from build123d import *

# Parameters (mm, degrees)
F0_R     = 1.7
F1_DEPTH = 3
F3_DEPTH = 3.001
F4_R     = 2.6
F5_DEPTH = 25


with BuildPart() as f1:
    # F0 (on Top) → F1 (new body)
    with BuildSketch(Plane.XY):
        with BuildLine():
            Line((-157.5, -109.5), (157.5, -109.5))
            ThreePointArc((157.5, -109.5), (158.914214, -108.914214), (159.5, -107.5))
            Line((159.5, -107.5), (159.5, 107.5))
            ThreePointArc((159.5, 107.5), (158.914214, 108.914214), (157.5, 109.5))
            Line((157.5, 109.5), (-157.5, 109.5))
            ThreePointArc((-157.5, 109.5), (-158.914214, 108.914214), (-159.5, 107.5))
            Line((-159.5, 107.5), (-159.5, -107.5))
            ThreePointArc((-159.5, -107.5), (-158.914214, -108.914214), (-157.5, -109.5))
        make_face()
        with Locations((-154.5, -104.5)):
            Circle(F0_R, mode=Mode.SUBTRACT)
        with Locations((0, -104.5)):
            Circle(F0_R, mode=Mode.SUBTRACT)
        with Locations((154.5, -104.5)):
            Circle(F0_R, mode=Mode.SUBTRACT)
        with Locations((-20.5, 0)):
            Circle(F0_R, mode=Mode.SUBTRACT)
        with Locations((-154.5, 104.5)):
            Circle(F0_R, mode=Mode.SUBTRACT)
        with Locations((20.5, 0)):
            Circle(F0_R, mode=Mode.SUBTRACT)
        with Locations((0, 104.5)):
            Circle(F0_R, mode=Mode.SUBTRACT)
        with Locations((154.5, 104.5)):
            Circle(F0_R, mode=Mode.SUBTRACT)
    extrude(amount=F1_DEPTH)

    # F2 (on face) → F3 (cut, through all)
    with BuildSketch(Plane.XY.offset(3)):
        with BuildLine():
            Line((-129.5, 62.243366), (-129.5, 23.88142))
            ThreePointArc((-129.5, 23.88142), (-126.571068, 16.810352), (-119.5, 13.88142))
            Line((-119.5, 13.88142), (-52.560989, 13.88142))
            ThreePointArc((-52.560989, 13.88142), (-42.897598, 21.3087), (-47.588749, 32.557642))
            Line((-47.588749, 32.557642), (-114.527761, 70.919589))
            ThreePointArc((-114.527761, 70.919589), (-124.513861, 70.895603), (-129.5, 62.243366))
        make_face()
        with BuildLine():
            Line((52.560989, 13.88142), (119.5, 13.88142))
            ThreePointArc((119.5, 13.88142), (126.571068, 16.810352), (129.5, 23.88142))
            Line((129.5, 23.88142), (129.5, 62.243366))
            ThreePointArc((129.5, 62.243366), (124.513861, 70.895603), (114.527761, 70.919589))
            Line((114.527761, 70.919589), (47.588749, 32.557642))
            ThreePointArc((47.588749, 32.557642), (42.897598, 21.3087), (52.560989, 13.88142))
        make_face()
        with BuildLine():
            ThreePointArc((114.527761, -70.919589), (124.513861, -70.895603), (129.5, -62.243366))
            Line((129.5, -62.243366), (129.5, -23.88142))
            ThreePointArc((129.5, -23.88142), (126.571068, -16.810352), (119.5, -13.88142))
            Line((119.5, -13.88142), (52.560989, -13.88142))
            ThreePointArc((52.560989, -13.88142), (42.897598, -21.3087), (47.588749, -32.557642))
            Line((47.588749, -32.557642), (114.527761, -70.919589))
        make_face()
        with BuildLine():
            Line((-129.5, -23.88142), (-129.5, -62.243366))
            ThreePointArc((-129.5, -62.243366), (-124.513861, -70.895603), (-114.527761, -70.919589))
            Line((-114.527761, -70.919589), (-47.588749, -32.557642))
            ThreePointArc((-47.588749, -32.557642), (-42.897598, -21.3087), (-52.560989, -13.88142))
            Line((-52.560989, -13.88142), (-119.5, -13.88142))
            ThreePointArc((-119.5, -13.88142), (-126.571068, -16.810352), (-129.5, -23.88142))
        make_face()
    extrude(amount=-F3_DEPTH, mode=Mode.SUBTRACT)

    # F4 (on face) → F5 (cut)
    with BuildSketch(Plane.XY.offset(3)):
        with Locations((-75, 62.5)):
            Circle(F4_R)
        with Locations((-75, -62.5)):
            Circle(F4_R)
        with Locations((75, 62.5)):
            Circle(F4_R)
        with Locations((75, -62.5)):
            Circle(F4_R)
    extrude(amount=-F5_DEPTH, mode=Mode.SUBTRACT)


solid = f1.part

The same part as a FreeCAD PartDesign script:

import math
import FreeCAD as App
import Part
import Sketcher
from FreeCAD import Vector

doc = App.newDocument("Part")
body = doc.addObject("PartDesign::Body", "Body")

# Sketch on XY plane
sketch1 = body.newObject("Sketcher::SketchObject", "Sketch")
sketch1.AttachmentSupport = (doc.getObject("XY_Plane"), [""])
sketch1.MapMode = "FlatFace"
sketch1.addGeometry([
    Part.LineSegment(Vector(-157.5, -109.5, 0), Vector(157.5, -109.5, 0)),  # 0
    Part.ArcOfCircle(Part.Circle(Vector(157.5, -107.5, 0), Vector(0, 0, 1), 2), math.radians(-90), math.radians(0)),  # 1
    Part.LineSegment(Vector(159.5, -107.5, 0), Vector(159.5, 107.5, 0)),  # 2
    Part.ArcOfCircle(Part.Circle(Vector(157.5, 107.5, 0), Vector(0, 0, 1), 2), math.radians(0), math.radians(90)),  # 3
    Part.LineSegment(Vector(157.5, 109.5, 0), Vector(-157.5, 109.5, 0)),  # 4
    Part.ArcOfCircle(Part.Circle(Vector(-157.5, 107.5, 0), Vector(0, 0, 1), 2), math.radians(90), math.radians(180)),  # 5
    Part.LineSegment(Vector(-159.5, 107.5, 0), Vector(-159.5, -107.5, 0)),  # 6
    Part.ArcOfCircle(Part.Circle(Vector(-157.5, -107.5, 0), Vector(0, 0, 1), 2), math.radians(180), math.radians(270)),  # 7
    Part.Circle(Vector(-154.5, -104.5, 0), Vector(0, 0, 1), 1.7),  # 8
    Part.Circle(Vector(0, -104.5, 0), Vector(0, 0, 1), 1.7),  # 9
    Part.Circle(Vector(154.5, -104.5, 0), Vector(0, 0, 1), 1.7),  # 10
    Part.Circle(Vector(-20.5, 0, 0), Vector(0, 0, 1), 1.7),  # 11
    Part.Circle(Vector(-154.5, 104.5, 0), Vector(0, 0, 1), 1.7),  # 12
    Part.Circle(Vector(20.5, 0, 0), Vector(0, 0, 1), 1.7),  # 13
    Part.Circle(Vector(0, 104.5, 0), Vector(0, 0, 1), 1.7),  # 14
    Part.Circle(Vector(154.5, 104.5, 0), Vector(0, 0, 1), 1.7),  # 15
], False)
sketch1.addConstraint([
    Sketcher.Constraint("Tangent", 0, 2, 1, 1),
    Sketcher.Constraint("Tangent", 1, 2, 2, 1),
    Sketcher.Constraint("Tangent", 2, 2, 3, 1),
    Sketcher.Constraint("Tangent", 3, 2, 4, 1),
    Sketcher.Constraint("Tangent", 4, 2, 5, 1),
    Sketcher.Constraint("Tangent", 5, 2, 6, 1),
    Sketcher.Constraint("Tangent", 6, 2, 7, 1),
    Sketcher.Constraint("Tangent", 7, 2, 0, 1),
    Sketcher.Constraint("Horizontal", 0),
    Sketcher.Constraint("Vertical", 2),
    Sketcher.Constraint("Horizontal", 4),
    Sketcher.Constraint("Vertical", 6),
    Sketcher.Constraint("Equal", 1, 3),
    Sketcher.Constraint("Equal", 3, 5),
    Sketcher.Constraint("Equal", 5, 7),
    Sketcher.Constraint("Equal", 8, 9),
    Sketcher.Constraint("Equal", 9, 10),
    Sketcher.Constraint("Equal", 10, 11),
    Sketcher.Constraint("Equal", 11, 12),
    Sketcher.Constraint("Equal", 12, 13),
    Sketcher.Constraint("Equal", 13, 14),
    Sketcher.Constraint("Equal", 14, 15),
    Sketcher.Constraint("Symmetric", 1, 3, 5, 3, -1, 1),
    Sketcher.Constraint("Symmetric", 10, 3, 12, 3, -1, 1),
    Sketcher.Constraint("Symmetric", 11, 3, 13, 3, -1, 1),
    Sketcher.Constraint("Symmetric", 9, 3, 14, 3, -1, 1),
    Sketcher.Constraint("Symmetric", 8, 3, 15, 3, -1, 1),
    Sketcher.Constraint("Symmetric", 8, 3, 10, 3, -2),
    Sketcher.Constraint("PointOnObject", 9, 3, -2),
    Sketcher.Constraint("PointOnObject", 11, 3, -1),
    Sketcher.Constraint("Horizontal", 8, 3, 9, 3),
    Sketcher.Constraint("Radius", 1, 1.999999),
    Sketcher.Constraint("Diameter", 8, 3.4),
    Sketcher.Constraint("DistanceX", 0, 1, 0, 2, 315.0),
    Sketcher.Constraint("DistanceY", 2, 1, 2, 2, 215.0),
    Sketcher.Constraint("DistanceX", 7, 3, 8, 3, 3.000001),
    Sketcher.Constraint("DistanceY", 7, 3, 8, 3, 3.000001),
    Sketcher.Constraint("DistanceX", 8, 3, 11, 3, 134.0),
])
pad1 = body.newObject("PartDesign::Pad", "Pad")
pad1.Profile = sketch1
pad1.Length = 3

# Sketch on XY plane
sketch2 = body.newObject("Sketcher::SketchObject", "Sketch001")
sketch2.AttachmentSupport = (doc.getObject("XY_Plane"), [""])
sketch2.MapMode = "FlatFace"
sketch2.AttachmentOffset = App.Placement(Vector(0, 0, 3), App.Rotation())
sketch2.addGeometry([
    Part.LineSegment(Vector(-130, 62, 0), Vector(-130, 24, 0)),  # 0
    Part.ArcOfCircle(Part.Circle(Vector(-120, 24, 0), Vector(0, 0, 1), 10), math.radians(180), math.radians(270)),  # 1
    Part.LineSegment(Vector(-120, 14, 0), Vector(-53, 14, 0)),  # 2
    Part.ArcOfCircle(Part.Circle(Vector(-53, 24, 0), Vector(0, 0, 1), 10), math.radians(-90), math.radians(60)),  # 3
    Part.LineSegment(Vector(-48, 33, 0), Vector(-115, 71, 0)),  # 4
    Part.ArcOfCircle(Part.Circle(Vector(-120, 62, 0), Vector(0, 0, 1), 10), math.radians(60), math.radians(180)),  # 5
    Part.LineSegment(Vector(53, 14, 0), Vector(120, 14, 0)),  # 6
    Part.ArcOfCircle(Part.Circle(Vector(120, 24, 0), Vector(0, 0, 1), 10), math.radians(-90), math.radians(0)),  # 7
    Part.LineSegment(Vector(130, 24, 0), Vector(130, 62, 0)),  # 8
    Part.ArcOfCircle(Part.Circle(Vector(120, 62, 0), Vector(0, 0, 1), 10), math.radians(0), math.radians(120)),  # 9
    Part.LineSegment(Vector(115, 71, 0), Vector(48, 33, 0)),  # 10
    Part.ArcOfCircle(Part.Circle(Vector(53, 24, 0), Vector(0, 0, 1), 10), math.radians(120), math.radians(270)),  # 11
    Part.ArcOfCircle(Part.Circle(Vector(120, -62, 0), Vector(0, 0, 1), 10), math.radians(-120), math.radians(0)),  # 12
    Part.LineSegment(Vector(130, -62, 0), Vector(130, -24, 0)),  # 13
    Part.ArcOfCircle(Part.Circle(Vector(120, -24, 0), Vector(0, 0, 1), 10), math.radians(0), math.radians(90)),  # 14
    Part.LineSegment(Vector(120, -14, 0), Vector(53, -14, 0)),  # 15
    Part.ArcOfCircle(Part.Circle(Vector(53, -24, 0), Vector(0, 0, 1), 10), math.radians(90), math.radians(240)),  # 16
    Part.LineSegment(Vector(48, -33, 0), Vector(115, -71, 0)),  # 17
    Part.LineSegment(Vector(-130, -24, 0), Vector(-130, -62, 0)),  # 18
    Part.ArcOfCircle(Part.Circle(Vector(-120, -62, 0), Vector(0, 0, 1), 10), math.radians(180), math.radians(300)),  # 19
    Part.LineSegment(Vector(-115, -71, 0), Vector(-48, -33, 0)),  # 20
    Part.ArcOfCircle(Part.Circle(Vector(-53, -24, 0), Vector(0, 0, 1), 10), math.radians(-60), math.radians(90)),  # 21
    Part.LineSegment(Vector(-53, -14, 0), Vector(-120, -14, 0)),  # 22
    Part.ArcOfCircle(Part.Circle(Vector(-120, -24, 0), Vector(0, 0, 1), 10), math.radians(90), math.radians(180)),  # 23
], False)
sketch2.addConstraint([
    Sketcher.Constraint("Tangent", 0, 2, 1, 1),
    Sketcher.Constraint("Tangent", 1, 2, 2, 1),
    Sketcher.Constraint("Tangent", 2, 2, 3, 1),
    Sketcher.Constraint("Tangent", 3, 2, 4, 1),
    Sketcher.Constraint("Tangent", 4, 2, 5, 1),
    Sketcher.Constraint("Tangent", 5, 2, 0, 1),
    Sketcher.Constraint("Tangent", 6, 2, 7, 1),
    Sketcher.Constraint("Tangent", 7, 2, 8, 1),
    Sketcher.Constraint("Tangent", 8, 2, 9, 1),
    Sketcher.Constraint("Tangent", 9, 2, 10, 1),
    Sketcher.Constraint("Tangent", 10, 2, 11, 1),
    Sketcher.Constraint("Tangent", 11, 2, 6, 1),
    Sketcher.Constraint("Tangent", 12, 2, 13, 1),
    Sketcher.Constraint("Tangent", 13, 2, 14, 1),
    Sketcher.Constraint("Tangent", 14, 2, 15, 1),
    Sketcher.Constraint("Tangent", 15, 2, 16, 1),
    Sketcher.Constraint("Tangent", 16, 2, 17, 1),
    Sketcher.Constraint("Tangent", 17, 2, 12, 1),
    Sketcher.Constraint("Tangent", 18, 2, 19, 1),
    Sketcher.Constraint("Tangent", 19, 2, 20, 1),
    Sketcher.Constraint("Tangent", 20, 2, 21, 1),
    Sketcher.Constraint("Tangent", 21, 2, 22, 1),
    Sketcher.Constraint("Tangent", 22, 2, 23, 1),
    Sketcher.Constraint("Tangent", 23, 2, 18, 1),
    Sketcher.Constraint("Vertical", 0),
    Sketcher.Constraint("Horizontal", 2),
    Sketcher.Constraint("Horizontal", 6),
    Sketcher.Constraint("Vertical", 8),
    Sketcher.Constraint("Vertical", 13),
    Sketcher.Constraint("Horizontal", 15),
    Sketcher.Constraint("Vertical", 18),
    Sketcher.Constraint("Horizontal", 22),
    Sketcher.Constraint("Equal", 1, 3),
    Sketcher.Constraint("Equal", 3, 5),
    Sketcher.Constraint("Equal", 5, 7),
    Sketcher.Constraint("Equal", 7, 9),
    Sketcher.Constraint("Equal", 9, 11),
    Sketcher.Constraint("Equal", 11, 12),
    Sketcher.Constraint("Equal", 12, 14),
    Sketcher.Constraint("Equal", 14, 16),
    Sketcher.Constraint("Equal", 16, 19),
    Sketcher.Constraint("Equal", 19, 21),
    Sketcher.Constraint("Equal", 21, 23),
    Sketcher.Constraint("Symmetric", 5, 3, 12, 3, -1, 1),
    Sketcher.Constraint("Symmetric", 3, 3, 16, 3, -1, 1),
    Sketcher.Constraint("Symmetric", 9, 3, 19, 3, -1, 1),
    Sketcher.Constraint("Symmetric", 11, 3, 21, 3, -1, 1),
    Sketcher.Constraint("Symmetric", 1, 3, 7, 3, -2),
    Sketcher.Constraint("Symmetric", 4, 2, 9, 2, -2),
    Sketcher.Constraint("Radius", 1, 9.999999),
    Sketcher.Constraint("DistanceX", 1, 3, 7, 3, 239.000001),
    Sketcher.Constraint("DistanceX", 2, 1, 2, 2, 66.939011),
    Sketcher.Constraint("DistanceY", 0, 2, 0, 1, 38.361946),
    Sketcher.Constraint("DistanceY", -1, 1, 1, 3, 23.881419),
])
pocket1 = body.newObject("PartDesign::Pocket", "Pocket")
pocket1.Profile = sketch2
pocket1.Type = "ThroughAll"

# Sketch on XY plane
sketch3 = body.newObject("Sketcher::SketchObject", "Sketch002")
sketch3.AttachmentSupport = (doc.getObject("XY_Plane"), [""])
sketch3.MapMode = "FlatFace"
sketch3.AttachmentOffset = App.Placement(Vector(0, 0, 3), App.Rotation())
sketch3.addGeometry([
    Part.Circle(Vector(-75, 62.5, 0), Vector(0, 0, 1), 2.6),
    Part.Circle(Vector(-75, -62.5, 0), Vector(0, 0, 1), 2.6),
    Part.Circle(Vector(75, 62.5, 0), Vector(0, 0, 1), 2.6),
    Part.Circle(Vector(75, -62.5, 0), Vector(0, 0, 1), 2.6),
], False)
sketch3.addConstraint([
    Sketcher.Constraint("Equal", 0, 1),
    Sketcher.Constraint("Equal", 1, 2),
    Sketcher.Constraint("Equal", 2, 3),
    Sketcher.Constraint("Symmetric", 1, 3, 2, 3, -1, 1),
    Sketcher.Constraint("Symmetric", 0, 3, 3, 3, -1, 1),
    Sketcher.Constraint("Symmetric", 0, 3, 2, 3, -2),
    Sketcher.Constraint("Diameter", 0, 5.2),
    Sketcher.Constraint("DistanceX", 0, 3, -1, 1, 75.0),
    Sketcher.Constraint("DistanceY", 1, 3, 0, 3, 125.0),
])
pocket2 = body.newObject("PartDesign::Pocket", "Pocket001")
pocket2.Profile = sketch3
pocket2.Length = 25

doc.recompute()
